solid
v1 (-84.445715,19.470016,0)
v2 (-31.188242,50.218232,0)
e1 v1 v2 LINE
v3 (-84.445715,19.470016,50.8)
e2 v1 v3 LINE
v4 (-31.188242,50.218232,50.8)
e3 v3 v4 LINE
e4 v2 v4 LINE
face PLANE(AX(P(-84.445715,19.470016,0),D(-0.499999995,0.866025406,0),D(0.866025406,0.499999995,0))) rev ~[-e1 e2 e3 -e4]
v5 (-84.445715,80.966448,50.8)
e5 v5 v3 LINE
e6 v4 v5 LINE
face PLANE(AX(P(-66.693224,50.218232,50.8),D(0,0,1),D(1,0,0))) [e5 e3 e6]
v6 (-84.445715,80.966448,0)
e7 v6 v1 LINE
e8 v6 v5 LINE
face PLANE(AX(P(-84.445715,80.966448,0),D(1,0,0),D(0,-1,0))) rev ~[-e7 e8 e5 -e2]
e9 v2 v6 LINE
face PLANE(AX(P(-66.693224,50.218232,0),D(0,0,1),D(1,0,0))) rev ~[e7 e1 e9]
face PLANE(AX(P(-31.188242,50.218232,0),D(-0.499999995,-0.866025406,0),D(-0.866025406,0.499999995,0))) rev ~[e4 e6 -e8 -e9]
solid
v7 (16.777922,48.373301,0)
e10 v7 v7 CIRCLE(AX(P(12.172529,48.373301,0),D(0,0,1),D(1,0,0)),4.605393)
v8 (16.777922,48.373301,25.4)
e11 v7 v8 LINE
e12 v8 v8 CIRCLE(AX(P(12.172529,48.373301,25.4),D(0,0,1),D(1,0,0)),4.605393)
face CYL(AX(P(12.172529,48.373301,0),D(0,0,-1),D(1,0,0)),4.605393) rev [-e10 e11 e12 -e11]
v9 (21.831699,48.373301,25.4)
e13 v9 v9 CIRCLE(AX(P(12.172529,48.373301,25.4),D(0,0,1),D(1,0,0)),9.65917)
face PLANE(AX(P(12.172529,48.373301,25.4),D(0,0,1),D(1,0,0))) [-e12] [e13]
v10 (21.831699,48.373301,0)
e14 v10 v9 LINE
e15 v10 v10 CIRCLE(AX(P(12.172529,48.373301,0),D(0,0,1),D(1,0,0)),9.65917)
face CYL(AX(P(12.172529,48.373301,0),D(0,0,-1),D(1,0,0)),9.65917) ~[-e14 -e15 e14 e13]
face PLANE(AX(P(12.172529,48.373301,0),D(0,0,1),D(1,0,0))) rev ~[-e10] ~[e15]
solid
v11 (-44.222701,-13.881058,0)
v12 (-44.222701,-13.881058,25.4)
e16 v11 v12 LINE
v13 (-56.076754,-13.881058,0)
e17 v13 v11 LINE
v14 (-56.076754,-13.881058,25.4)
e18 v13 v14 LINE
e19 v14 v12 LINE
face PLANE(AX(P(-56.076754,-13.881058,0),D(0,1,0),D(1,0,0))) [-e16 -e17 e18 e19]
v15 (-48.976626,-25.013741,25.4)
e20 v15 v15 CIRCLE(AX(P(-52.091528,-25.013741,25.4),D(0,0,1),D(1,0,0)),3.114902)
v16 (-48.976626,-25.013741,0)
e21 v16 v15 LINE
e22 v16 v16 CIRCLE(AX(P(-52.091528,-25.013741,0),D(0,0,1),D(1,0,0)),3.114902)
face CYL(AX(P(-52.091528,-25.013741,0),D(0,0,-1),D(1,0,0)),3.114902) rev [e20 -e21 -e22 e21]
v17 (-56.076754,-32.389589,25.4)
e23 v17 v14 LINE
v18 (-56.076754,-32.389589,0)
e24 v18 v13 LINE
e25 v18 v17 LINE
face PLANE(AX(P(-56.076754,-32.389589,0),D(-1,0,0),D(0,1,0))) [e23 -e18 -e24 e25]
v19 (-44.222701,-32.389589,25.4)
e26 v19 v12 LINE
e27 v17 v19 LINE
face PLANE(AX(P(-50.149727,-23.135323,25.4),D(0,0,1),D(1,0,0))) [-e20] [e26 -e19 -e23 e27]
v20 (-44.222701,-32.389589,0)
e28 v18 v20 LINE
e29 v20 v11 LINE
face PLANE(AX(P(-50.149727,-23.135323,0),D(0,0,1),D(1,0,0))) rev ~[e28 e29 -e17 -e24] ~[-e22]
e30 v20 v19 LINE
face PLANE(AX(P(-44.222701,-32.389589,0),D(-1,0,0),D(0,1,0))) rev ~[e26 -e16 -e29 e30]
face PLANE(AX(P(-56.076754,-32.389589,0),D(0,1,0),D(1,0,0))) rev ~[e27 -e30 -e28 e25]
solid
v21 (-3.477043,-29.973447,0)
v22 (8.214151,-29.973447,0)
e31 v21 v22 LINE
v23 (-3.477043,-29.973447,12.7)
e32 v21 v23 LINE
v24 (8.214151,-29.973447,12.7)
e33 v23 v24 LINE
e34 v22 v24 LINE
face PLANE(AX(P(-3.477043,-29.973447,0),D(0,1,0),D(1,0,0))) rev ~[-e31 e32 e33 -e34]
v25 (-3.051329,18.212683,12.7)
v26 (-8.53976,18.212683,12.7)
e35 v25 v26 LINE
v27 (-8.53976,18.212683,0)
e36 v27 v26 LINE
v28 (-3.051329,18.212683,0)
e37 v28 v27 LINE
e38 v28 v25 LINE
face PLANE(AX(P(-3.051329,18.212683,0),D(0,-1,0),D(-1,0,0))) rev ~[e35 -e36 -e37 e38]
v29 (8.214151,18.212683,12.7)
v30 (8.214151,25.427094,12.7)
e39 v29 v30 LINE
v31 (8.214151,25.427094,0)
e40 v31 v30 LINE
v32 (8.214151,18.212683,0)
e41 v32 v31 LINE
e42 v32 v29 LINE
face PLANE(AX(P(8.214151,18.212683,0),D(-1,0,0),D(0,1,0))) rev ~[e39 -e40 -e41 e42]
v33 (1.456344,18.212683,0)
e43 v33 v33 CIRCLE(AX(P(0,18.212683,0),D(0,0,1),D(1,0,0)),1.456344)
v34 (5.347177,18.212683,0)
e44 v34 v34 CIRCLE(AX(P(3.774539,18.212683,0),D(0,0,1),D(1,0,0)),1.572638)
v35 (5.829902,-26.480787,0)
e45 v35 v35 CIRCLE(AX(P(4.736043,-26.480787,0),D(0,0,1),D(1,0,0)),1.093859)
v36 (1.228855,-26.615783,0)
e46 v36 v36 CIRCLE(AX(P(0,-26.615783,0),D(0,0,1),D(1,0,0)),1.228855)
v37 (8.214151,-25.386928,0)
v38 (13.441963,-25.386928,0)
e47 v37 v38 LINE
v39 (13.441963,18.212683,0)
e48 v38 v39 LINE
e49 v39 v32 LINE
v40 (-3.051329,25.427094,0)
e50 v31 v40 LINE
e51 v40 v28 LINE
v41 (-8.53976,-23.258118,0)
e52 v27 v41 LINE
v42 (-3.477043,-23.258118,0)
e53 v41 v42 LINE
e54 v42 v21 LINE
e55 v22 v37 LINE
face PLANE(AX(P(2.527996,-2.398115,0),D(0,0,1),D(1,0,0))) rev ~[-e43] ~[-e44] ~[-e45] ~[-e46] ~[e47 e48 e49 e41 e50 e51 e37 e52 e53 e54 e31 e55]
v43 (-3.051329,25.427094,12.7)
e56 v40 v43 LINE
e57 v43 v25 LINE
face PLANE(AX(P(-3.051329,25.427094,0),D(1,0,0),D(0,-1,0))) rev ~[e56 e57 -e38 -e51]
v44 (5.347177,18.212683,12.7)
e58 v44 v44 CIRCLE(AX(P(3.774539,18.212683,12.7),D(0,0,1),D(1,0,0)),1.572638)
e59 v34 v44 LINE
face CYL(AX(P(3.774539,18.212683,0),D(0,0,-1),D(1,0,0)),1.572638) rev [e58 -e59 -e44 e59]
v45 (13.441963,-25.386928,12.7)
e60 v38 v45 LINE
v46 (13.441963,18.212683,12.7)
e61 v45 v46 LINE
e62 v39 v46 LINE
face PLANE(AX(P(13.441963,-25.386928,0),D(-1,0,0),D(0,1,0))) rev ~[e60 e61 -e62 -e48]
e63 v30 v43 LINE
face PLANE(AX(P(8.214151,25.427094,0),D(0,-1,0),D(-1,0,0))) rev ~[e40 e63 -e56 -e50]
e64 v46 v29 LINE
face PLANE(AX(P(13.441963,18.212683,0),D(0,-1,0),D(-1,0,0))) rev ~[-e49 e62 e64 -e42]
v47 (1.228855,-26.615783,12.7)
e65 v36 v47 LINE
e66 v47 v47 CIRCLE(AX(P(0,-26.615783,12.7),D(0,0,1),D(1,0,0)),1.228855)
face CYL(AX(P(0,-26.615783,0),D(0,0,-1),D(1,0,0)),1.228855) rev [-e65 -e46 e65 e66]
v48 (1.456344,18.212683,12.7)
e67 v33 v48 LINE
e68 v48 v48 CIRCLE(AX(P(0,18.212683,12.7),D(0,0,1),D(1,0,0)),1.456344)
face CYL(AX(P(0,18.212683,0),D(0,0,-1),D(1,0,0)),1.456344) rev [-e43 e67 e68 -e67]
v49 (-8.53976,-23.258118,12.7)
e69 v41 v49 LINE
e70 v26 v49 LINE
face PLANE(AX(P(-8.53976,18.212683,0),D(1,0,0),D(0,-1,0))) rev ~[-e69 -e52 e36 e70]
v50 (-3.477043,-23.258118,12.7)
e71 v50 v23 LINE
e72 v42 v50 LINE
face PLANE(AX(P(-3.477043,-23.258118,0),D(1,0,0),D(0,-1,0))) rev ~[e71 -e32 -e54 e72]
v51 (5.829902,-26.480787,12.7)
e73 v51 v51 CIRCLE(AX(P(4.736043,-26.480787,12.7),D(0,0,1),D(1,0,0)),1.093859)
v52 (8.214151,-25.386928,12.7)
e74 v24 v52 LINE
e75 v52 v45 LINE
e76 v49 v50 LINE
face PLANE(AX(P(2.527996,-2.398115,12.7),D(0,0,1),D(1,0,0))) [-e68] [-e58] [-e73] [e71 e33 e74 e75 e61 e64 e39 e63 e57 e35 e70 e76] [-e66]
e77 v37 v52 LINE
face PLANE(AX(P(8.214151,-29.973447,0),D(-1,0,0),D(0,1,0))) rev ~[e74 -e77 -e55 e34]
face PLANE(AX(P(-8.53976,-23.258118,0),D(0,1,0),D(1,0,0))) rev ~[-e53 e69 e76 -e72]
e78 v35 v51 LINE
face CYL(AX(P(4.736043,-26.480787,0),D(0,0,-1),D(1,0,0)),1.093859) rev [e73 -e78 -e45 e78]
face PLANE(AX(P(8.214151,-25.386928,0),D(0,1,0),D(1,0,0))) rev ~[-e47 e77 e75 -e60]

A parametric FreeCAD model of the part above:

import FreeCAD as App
import Part
import Sketcher
from FreeCAD import Vector
Q = App.Units.Quantity


def add_polygon(sketch, points):
    """Adds a closed chain of lines whose ends are joined by coincident constraints."""
    first, n = sketch.GeometryCount, len(points)
    for a, b in zip(points, points[1:] + points[:1]):
        sketch.addGeometry(Part.LineSegment(App.Vector(*a, 0), App.Vector(*b, 0)), False)
    for i in range(n):
        sketch.addConstraint(Sketcher.Constraint("Coincident", first + i, 2, first + (i + 1) % n, 1))

doc = App.newDocument("Part")
body = doc.addObject("PartDesign::Body", "Body")

# Sketch on XY plane
sketch1 = body.newObject("Sketcher::SketchObject", "Sketch")
sketch1.AttachmentSupport = (doc.getObject("XY_Plane"), [""])
sketch1.MapMode = "FlatFace"
add_polygon(sketch1, [(8.2, 25.4), (-3.1, 25.4), (-3.1, 18.2), (-8.5, 18.2), (-8.5, -23.3), (-3.5, -23.3), (-3.5, -30), (8.2, -30), (8.2, -25.4), (13.4, -25.4), (13.4, 18.2), (8.2, 18.2)])  # lines 0-11
sketch1.addGeometry(Part.Circle(Vector(0, -26.6, 0), Vector(0, 0, 1), 1.2), False)  # 12
sketch1.addGeometry(Part.Circle(Vector(4.7, -26.5, 0), Vector(0, 0, 1), 1.1), False)  # 13
sketch1.addGeometry(Part.Circle(Vector(0, 18.2, 0), Vector(0, 0, 1), 1.5), False)  # 14
sketch1.addGeometry(Part.Circle(Vector(3.8, 18.2, 0), Vector(0, 0, 1), 1.6), False)  # 15
sketch1.addConstraint([
    Sketcher.Constraint("Horizontal", 0),
    Sketcher.Constraint("Vertical", 1),
    Sketcher.Constraint("Horizontal", 2),
    Sketcher.Constraint("Vertical", 3),
    Sketcher.Constraint("Horizontal", 4),
    Sketcher.Constraint("Vertical", 5),
    Sketcher.Constraint("Horizontal", 6),
    Sketcher.Constraint("Vertical", 7),
    Sketcher.Constraint("Horizontal", 8),
    Sketcher.Constraint("Vertical", 9),
    Sketcher.Constraint("Horizontal", 10),
    Sketcher.Constraint("Vertical", 11),
    Sketcher.Constraint("PointOnObject", 12, 3, -2),
    Sketcher.Constraint("PointOnObject", 14, 3, -2),
    Sketcher.Constraint("Horizontal", 14, 3, 15, 3),
    Sketcher.Constraint("Horizontal", 15, 3, 1, 2),
    Sketcher.Constraint("Horizontal", 2, 2, 9, 2),
    Sketcher.Constraint("Vertical", 7, 2, 10, 2),
    Sketcher.Constraint("Diameter", 12, 2.45771),
    Sketcher.Constraint("Diameter", 14, 2.912688),
    Sketcher.Constraint("Diameter", 13, 2.187718),
    Sketcher.Constraint("Diameter", 15, 3.145276),
    Sketcher.Constraint("DistanceY", 3, 2, 3, 1, 41.470801),
    Sketcher.Constraint("DistanceX", 0, 2, 0, 1, 11.26548),
    Sketcher.Constraint("DistanceX", 2, 2, 2, 1, 5.488431),
    Sketcher.Constraint("DistanceY", 1, 2, 1, 1, 7.214411),
    Sketcher.Constraint("DistanceY", 5, 2, 5, 1, 6.715329),
    Sketcher.Constraint("DistanceY", 7, 1, 7, 2, 4.586519),
    Sketcher.Constraint("DistanceX", 2, 2, 15, 3, 12.314299),
    Sketcher.Constraint("DistanceX", 4, 1, 4, 2, 5.062717),
    Sketcher.Constraint("DistanceX", 8, 1, 8, 2, 5.227812),
    Sketcher.Constraint("DistanceX", -1, 1, 15, 3, 3.774539),
    Sketcher.Constraint("DistanceY", 7, 2, -1, 1, 25.386928),
    Sketcher.Constraint("DistanceY", 13, 3, 14, 3, 44.69347),
    Sketcher.Constraint("DistanceX", 0, 2, 13, 3, 7.787372),
    Sketcher.Constraint("DistanceY", 12, 3, -1, 1, 26.615783),
])
pad1 = body.newObject("PartDesign::Pad", "Pad")
pad1.Profile = sketch1
pad1.Length = Q("0.5 in")
body2 = doc.addObject("PartDesign::Body", "Body001")

# Sketch on XY plane
sketch2 = body2.newObject("Sketcher::SketchObject", "Sketch001")
sketch2.AttachmentSupport = (doc.getObject("XY_Plane001"), [""])
sketch2.MapMode = "FlatFace"
add_polygon(sketch2, [(-56.1, -13.9), (-56.1, -32.4), (-44.2, -32.4), (-44.2, -13.9)])  # lines 0-3
sketch2.addGeometry(Part.Circle(Vector(-52.1, -25, 0), Vector(0, 0, 1), 3.1), False)  # 4
sketch2.addConstraint([
    Sketcher.Constraint("Vertical", 0),
    Sketcher.Constraint("Horizontal", 1),
    Sketcher.Constraint("Vertical", 2),
    Sketcher.Constraint("Horizontal", 3),
    Sketcher.Constraint("Diameter", 4, 6.229804),
    Sketcher.Constraint("DistanceY", 0, 2, 0, 1, 18.508531),
    Sketcher.Constraint("DistanceX", 1, 2, -1, 1, 44.222701),
    Sketcher.Constraint("DistanceX", 1, 1, 1, 2, 11.854053),
    Sketcher.Constraint("DistanceY", 4, 3, -1, 1, 25.013741),
    Sketcher.Constraint("DistanceY", 0, 2, -1, 1, 32.389589),
    Sketcher.Constraint("DistanceX", 4, 3, -1, 1, 52.091528),
])
pad2 = body2.newObject("PartDesign::Pad", "Pad001")
pad2.Profile = sketch2
pad2.Length = Q("1 in")
body3 = doc.addObject("PartDesign::Body", "Body002")

# Sketch on XY plane
sketch3 = body3.newObject("Sketcher::SketchObject", "Sketch002")
sketch3.AttachmentSupport = (doc.getObject("XY_Plane002"), [""])
sketch3.MapMode = "FlatFace"
sketch3.addGeometry([
    Part.Circle(Vector(12.2, 48.4, 0), Vector(0, 0, 1), 9.7),
    Part.Circle(Vector(12.2, 48.4, 0), Vector(0, 0, 1), 4.6),
], False)
sketch3.addConstraint([
    Sketcher.Constraint("Coincident", 1, 3, 0, 3),
    Sketcher.Constraint("Diameter", 0, 19.31834),
    Sketcher.Constraint("Diameter", 1, 9.210786),
    Sketcher.Constraint("DistanceY", -1, 1, 0, 3, 48.373301),
    Sketcher.Constraint("DistanceX", -1, 1, 0, 3, 12.172529),
])
pad3 = body3.newObject("PartDesign::Pad", "Pad002")
pad3.Profile = sketch3
pad3.Length = Q("1 in")
body4 = doc.addObject("PartDesign::Body", "Body003")

# Sketch on XY plane
sketch4 = body4.newObject("Sketcher::SketchObject", "Sketch003")
sketch4.AttachmentSupport = (doc.getObject("XY_Plane003"), [""])
sketch4.MapMode = "FlatFace"
add_polygon(sketch4, [(-84, 81), (-84, 19), (-31, 50)])  # lines 0-2
sketch4.addConstraint([
    Sketcher.Constraint("Vertical", 0),
    Sketcher.Constraint("Equal", 1, 2),
    Sketcher.Constraint("Angle", 1, Q("30 deg")),
    Sketcher.Constraint("DistanceY", 0, 2, 0, 1, 61.496432),
    Sketcher.Constraint("DistanceX", 1, 2, -1, 1, 31.188242),
    Sketcher.Constraint("DistanceY", -1, 1, 2, 2, 80.966448),
])
pad4 = body4.newObject("PartDesign::Pad", "Pad003")
pad4.Profile = sketch4
pad4.Length = Q("2 in")

doc.recompute()
